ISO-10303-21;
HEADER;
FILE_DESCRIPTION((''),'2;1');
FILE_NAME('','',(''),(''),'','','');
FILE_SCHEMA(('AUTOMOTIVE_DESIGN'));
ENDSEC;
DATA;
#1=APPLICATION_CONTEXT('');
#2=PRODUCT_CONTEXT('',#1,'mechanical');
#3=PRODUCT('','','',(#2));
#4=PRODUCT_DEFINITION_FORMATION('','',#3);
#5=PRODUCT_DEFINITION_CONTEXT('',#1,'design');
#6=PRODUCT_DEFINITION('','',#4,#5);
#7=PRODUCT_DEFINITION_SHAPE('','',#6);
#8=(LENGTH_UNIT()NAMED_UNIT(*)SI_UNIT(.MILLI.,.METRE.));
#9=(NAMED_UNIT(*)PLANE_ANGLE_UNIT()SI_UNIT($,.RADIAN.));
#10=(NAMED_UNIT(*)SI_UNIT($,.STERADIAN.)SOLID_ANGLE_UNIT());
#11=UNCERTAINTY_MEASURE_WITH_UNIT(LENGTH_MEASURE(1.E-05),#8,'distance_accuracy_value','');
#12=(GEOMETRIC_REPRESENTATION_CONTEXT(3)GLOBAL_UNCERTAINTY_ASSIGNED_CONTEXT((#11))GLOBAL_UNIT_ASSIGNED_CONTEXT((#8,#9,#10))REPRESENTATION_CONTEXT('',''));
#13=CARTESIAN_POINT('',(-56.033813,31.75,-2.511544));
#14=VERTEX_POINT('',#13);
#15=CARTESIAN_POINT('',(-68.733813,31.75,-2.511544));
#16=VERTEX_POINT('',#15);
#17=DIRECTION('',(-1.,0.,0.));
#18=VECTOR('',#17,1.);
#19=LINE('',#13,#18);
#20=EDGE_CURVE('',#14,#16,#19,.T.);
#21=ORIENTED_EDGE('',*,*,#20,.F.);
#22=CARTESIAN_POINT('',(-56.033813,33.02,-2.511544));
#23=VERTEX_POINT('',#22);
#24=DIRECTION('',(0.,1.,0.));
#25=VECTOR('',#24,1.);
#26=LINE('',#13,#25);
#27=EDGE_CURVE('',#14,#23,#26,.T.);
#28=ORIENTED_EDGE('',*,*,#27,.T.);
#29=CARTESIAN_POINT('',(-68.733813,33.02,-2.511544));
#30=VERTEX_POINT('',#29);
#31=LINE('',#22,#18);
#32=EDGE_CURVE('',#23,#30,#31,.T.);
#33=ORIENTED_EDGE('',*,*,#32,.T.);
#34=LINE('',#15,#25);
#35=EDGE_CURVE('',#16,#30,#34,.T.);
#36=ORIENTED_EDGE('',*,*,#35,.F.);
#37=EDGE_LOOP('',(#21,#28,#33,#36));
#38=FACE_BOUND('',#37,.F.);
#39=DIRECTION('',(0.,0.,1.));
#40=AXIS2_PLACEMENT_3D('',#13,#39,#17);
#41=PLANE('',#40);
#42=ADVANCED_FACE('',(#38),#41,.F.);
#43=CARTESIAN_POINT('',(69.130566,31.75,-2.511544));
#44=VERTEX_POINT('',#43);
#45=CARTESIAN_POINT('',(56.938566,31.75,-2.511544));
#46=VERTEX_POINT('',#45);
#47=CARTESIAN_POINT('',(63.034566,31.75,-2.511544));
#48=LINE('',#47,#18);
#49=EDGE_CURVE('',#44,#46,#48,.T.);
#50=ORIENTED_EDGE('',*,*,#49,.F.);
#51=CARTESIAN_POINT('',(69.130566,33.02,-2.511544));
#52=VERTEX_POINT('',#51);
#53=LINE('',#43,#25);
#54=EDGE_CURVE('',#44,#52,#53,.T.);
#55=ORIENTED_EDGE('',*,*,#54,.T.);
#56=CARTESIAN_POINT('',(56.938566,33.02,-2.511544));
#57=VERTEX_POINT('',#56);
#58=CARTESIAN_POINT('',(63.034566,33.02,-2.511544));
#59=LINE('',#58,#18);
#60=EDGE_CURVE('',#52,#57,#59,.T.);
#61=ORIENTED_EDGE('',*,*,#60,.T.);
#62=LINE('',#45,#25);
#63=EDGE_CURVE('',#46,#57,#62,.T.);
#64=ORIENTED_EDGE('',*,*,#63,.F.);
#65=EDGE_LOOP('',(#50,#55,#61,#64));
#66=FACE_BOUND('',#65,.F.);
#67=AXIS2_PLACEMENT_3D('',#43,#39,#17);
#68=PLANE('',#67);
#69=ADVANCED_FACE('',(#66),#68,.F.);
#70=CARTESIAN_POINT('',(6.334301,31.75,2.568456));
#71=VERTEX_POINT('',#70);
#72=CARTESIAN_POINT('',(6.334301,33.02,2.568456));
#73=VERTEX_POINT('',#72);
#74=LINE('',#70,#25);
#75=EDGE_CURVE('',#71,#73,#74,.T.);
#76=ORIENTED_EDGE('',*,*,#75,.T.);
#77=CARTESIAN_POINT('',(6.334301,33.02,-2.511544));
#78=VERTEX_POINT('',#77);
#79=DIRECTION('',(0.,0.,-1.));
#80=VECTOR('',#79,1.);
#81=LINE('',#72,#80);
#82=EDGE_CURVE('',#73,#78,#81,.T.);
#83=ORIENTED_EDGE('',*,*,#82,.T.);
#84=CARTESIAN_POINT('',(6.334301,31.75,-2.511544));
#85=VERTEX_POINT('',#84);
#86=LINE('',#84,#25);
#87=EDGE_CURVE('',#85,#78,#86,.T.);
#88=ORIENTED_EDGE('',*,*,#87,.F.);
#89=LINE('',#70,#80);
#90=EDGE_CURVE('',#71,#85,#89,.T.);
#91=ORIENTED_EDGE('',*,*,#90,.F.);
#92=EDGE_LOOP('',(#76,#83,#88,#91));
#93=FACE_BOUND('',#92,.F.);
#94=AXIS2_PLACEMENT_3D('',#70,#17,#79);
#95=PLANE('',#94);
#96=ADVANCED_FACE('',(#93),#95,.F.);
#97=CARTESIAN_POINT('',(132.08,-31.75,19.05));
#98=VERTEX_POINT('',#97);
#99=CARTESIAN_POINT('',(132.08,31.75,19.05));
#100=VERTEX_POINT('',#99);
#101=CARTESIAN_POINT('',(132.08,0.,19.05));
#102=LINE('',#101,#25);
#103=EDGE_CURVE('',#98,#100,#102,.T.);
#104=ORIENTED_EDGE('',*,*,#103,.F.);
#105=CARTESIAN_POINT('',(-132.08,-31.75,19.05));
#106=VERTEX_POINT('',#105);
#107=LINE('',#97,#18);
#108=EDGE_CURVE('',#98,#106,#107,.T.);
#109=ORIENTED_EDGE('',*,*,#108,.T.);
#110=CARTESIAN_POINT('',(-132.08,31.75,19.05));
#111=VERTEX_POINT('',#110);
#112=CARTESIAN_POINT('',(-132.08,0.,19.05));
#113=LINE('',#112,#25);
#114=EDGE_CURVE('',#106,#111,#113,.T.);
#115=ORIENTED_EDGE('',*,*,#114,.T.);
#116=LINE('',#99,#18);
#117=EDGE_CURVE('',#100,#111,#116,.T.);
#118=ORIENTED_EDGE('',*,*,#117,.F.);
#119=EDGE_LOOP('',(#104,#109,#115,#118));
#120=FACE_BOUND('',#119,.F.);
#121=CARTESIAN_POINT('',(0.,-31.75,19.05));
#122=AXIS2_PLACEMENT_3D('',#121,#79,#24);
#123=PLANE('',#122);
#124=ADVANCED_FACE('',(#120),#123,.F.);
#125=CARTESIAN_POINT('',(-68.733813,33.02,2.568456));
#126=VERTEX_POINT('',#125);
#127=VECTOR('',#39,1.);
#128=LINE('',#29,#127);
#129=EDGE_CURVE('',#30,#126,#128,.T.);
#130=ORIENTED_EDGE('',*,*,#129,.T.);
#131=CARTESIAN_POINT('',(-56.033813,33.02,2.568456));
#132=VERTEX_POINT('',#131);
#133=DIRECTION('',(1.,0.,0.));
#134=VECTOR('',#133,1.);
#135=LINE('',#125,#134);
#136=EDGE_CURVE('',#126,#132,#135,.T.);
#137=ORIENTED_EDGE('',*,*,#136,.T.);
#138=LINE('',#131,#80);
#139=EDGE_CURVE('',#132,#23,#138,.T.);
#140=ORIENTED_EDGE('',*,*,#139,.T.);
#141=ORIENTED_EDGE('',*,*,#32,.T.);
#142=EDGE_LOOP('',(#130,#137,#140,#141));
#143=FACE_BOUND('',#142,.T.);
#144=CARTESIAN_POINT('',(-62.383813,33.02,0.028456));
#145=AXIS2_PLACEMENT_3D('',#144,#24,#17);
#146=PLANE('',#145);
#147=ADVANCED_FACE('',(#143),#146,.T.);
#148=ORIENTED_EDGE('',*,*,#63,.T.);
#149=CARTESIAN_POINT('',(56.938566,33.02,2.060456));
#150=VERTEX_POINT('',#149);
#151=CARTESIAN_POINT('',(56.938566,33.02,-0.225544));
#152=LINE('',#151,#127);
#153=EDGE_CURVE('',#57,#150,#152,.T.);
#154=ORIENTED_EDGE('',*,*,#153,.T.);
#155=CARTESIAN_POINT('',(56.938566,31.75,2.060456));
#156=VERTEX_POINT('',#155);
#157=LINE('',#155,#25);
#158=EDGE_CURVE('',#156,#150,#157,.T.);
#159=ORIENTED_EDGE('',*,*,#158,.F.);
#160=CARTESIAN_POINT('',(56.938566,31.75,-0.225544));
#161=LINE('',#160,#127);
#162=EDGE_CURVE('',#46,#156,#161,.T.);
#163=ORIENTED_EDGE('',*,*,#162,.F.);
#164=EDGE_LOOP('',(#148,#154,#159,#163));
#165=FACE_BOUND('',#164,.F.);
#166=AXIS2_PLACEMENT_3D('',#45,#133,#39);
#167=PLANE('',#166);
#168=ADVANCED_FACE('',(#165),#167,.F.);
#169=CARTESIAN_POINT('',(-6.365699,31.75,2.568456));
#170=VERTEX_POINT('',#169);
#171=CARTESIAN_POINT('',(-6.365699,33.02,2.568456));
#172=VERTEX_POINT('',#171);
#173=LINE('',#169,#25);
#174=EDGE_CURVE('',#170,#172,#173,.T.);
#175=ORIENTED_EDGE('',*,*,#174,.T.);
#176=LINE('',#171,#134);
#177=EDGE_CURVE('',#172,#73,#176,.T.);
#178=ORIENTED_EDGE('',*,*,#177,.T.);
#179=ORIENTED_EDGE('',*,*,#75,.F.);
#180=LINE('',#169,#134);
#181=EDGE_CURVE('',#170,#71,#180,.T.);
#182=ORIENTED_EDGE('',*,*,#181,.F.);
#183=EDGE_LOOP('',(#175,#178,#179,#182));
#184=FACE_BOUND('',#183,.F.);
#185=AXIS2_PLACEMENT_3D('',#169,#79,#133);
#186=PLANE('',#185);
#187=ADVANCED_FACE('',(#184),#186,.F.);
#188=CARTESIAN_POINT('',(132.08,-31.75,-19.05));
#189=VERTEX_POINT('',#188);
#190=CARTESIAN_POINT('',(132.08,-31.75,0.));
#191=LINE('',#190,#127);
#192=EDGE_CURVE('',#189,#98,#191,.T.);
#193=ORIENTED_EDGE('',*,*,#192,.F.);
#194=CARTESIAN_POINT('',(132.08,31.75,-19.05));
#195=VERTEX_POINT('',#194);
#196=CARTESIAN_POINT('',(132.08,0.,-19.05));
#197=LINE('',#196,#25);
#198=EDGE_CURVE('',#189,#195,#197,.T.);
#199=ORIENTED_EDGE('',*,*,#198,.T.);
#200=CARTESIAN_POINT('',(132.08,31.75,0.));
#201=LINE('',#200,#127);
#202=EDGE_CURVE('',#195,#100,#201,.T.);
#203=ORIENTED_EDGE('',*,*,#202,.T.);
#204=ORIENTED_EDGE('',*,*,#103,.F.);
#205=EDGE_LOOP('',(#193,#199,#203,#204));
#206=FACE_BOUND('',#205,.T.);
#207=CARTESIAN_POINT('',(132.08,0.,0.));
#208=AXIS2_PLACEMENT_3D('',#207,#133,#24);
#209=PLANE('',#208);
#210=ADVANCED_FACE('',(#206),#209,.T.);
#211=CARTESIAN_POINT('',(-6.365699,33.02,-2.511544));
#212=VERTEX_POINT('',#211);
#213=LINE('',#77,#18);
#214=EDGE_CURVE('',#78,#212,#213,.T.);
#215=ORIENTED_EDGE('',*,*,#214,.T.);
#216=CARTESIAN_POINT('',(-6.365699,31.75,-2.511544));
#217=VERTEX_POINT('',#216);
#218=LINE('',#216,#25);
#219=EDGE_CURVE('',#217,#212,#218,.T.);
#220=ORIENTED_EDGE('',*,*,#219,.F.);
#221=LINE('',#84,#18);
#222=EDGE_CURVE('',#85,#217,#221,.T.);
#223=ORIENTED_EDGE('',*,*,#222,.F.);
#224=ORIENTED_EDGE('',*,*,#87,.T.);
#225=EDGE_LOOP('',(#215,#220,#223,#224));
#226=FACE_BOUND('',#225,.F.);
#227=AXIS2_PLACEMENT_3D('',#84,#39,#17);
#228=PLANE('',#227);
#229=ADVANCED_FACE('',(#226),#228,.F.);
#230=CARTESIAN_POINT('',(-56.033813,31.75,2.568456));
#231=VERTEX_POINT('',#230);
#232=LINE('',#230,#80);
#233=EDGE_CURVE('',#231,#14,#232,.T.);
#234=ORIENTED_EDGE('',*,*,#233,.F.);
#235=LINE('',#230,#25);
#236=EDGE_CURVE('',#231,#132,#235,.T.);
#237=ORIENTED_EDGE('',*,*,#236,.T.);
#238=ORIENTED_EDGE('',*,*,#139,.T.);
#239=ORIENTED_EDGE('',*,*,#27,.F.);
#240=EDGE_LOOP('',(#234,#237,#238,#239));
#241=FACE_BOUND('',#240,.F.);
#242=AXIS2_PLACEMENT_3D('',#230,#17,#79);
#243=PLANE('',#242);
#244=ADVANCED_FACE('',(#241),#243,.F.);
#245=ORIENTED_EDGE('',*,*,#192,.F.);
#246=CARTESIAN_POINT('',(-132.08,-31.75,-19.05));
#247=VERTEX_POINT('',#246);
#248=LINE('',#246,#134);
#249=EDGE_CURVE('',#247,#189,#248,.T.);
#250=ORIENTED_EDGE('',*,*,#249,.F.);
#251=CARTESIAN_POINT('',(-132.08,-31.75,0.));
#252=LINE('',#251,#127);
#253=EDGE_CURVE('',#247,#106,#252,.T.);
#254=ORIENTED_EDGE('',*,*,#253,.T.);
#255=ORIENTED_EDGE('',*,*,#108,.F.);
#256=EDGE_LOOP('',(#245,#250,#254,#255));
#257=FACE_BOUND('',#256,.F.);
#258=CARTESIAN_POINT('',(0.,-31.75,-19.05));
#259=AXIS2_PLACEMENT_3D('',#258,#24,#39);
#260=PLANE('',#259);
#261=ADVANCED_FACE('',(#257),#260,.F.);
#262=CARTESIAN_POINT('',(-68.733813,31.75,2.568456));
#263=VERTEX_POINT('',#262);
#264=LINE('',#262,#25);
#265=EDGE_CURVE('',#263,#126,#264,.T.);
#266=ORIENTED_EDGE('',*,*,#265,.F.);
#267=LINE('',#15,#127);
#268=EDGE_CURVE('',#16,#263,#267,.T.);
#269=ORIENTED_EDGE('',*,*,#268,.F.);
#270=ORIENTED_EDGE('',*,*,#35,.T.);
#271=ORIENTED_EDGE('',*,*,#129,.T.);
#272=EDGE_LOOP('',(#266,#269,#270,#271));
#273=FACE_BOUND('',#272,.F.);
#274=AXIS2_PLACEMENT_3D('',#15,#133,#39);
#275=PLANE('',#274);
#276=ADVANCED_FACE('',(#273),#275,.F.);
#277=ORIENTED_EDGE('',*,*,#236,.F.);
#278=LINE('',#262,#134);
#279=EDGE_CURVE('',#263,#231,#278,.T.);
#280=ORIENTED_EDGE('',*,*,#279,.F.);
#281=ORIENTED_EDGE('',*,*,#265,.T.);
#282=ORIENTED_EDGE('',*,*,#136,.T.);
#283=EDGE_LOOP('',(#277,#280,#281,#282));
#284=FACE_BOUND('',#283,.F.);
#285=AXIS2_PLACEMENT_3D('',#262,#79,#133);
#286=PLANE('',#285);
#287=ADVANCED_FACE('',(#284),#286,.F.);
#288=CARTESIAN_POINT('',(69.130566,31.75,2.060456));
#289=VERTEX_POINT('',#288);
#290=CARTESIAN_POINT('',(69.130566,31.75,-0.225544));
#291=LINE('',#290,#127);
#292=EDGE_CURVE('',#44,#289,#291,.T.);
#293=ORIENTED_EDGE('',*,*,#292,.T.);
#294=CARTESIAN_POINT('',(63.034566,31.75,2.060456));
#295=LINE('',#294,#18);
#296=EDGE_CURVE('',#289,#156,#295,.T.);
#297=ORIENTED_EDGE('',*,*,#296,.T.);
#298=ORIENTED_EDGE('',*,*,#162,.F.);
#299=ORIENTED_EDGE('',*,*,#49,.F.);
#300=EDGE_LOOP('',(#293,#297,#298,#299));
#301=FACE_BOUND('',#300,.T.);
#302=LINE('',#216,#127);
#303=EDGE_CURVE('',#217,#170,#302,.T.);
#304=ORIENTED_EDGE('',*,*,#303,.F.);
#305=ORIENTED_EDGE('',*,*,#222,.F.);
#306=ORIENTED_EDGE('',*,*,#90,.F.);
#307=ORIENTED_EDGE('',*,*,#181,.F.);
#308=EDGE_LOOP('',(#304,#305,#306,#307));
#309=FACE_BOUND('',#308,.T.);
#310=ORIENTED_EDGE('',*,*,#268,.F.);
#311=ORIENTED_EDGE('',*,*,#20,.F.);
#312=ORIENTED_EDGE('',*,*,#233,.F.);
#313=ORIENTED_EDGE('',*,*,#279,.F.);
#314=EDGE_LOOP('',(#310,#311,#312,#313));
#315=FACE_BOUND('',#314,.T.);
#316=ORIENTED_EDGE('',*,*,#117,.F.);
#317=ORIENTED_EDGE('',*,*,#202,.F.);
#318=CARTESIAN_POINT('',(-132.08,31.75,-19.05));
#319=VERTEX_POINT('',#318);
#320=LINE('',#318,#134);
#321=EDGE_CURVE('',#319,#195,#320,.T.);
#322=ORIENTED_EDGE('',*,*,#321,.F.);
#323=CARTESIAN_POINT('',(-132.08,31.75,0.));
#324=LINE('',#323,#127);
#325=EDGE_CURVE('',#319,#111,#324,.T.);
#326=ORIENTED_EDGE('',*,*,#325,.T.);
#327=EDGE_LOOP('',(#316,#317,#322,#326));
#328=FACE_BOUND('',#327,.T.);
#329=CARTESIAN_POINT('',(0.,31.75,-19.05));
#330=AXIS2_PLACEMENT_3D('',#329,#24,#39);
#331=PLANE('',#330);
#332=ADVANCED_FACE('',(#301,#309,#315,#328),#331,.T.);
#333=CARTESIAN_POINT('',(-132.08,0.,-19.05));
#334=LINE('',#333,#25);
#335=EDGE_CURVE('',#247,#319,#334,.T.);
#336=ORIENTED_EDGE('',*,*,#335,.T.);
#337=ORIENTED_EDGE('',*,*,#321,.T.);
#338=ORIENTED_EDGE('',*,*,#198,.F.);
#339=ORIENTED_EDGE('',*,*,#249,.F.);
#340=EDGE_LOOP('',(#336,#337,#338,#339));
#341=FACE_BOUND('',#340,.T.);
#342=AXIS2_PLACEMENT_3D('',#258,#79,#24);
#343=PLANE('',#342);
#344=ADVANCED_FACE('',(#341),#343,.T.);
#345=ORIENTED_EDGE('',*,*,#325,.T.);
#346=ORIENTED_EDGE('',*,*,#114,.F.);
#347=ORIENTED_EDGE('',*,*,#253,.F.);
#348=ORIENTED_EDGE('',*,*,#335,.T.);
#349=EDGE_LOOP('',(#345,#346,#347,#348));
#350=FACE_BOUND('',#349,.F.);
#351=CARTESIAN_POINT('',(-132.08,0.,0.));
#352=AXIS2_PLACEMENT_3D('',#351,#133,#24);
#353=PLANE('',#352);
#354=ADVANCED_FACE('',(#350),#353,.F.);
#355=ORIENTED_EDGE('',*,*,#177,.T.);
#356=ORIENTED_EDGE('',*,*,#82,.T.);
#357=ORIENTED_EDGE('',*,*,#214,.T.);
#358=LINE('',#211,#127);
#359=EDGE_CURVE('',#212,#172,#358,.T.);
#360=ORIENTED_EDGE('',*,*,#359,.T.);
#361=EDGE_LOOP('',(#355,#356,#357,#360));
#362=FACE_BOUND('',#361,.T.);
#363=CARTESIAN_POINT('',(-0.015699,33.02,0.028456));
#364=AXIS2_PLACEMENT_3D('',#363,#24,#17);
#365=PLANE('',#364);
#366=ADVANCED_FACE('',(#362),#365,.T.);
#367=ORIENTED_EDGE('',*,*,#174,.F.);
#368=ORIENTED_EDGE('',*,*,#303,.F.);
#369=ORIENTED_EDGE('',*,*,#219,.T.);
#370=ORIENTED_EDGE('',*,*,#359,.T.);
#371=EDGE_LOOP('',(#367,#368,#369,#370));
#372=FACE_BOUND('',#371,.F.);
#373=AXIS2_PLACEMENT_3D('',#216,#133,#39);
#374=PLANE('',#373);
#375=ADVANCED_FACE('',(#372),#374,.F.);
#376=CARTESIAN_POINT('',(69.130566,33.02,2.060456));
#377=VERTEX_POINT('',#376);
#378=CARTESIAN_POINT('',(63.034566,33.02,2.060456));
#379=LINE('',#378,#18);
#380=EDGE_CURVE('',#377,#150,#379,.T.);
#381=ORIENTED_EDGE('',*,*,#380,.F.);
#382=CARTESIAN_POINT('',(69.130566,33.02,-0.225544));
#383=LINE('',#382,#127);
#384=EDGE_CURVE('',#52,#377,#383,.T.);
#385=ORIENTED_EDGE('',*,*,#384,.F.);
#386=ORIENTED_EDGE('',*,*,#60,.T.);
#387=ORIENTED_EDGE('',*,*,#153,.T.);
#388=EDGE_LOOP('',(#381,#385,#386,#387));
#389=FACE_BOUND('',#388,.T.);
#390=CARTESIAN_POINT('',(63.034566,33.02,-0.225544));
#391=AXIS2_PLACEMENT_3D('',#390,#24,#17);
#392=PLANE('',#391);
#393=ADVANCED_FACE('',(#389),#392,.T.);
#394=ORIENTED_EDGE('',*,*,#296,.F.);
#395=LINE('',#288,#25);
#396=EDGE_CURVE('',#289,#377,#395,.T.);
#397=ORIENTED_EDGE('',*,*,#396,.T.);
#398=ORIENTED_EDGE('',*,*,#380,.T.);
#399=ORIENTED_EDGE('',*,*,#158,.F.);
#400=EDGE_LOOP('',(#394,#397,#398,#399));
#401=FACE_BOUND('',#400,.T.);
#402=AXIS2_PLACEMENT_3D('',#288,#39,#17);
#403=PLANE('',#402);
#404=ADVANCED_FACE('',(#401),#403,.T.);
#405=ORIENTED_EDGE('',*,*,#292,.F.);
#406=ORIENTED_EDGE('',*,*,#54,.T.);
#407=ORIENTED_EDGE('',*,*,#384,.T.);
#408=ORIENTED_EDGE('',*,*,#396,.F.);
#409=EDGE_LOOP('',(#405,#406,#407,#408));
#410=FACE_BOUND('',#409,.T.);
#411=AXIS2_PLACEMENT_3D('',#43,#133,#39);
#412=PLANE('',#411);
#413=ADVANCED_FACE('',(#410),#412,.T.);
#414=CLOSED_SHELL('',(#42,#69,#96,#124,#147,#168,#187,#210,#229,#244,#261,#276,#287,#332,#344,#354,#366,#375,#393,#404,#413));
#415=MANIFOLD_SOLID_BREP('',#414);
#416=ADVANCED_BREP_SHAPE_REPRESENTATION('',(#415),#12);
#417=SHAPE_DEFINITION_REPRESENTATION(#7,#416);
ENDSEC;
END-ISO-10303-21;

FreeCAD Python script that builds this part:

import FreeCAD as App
import Part
import Sketcher
from FreeCAD import Vector
Q = App.Units.Quantity


def add_polygon(sketch, points):
    """Adds a closed chain of lines whose ends are joined by coincident constraints."""
    first, n = sketch.GeometryCount, len(points)
    for a, b in zip(points, points[1:] + points[:1]):
        sketch.addGeometry(Part.LineSegment(App.Vector(*a, 0), App.Vector(*b, 0)), False)
    for i in range(n):
        sketch.addConstraint(Sketcher.Constraint("Coincident", first + i, 2, first + (i + 1) % n, 1))

doc = App.newDocument("Part")
body = doc.addObject("PartDesign::Body", "Body")

# Sketch on YZ plane
sketch1 = doc.addObject("Sketcher::SketchObject", "Sketch")
body.addObject(sketch1)
sketch1.AttachmentSupport = (doc.YZ_Plane, [""])
sketch1.MapMode = "FlatFace"
add_polygon(sketch1, [(-32, 19), (-32, -19), (32, -19), (32, 19)])  # lines 0-3
sketch1.addConstraint(Sketcher.Constraint("Vertical", 0))
sketch1.addConstraint(Sketcher.Constraint("Horizontal", 1))
sketch1.addConstraint(Sketcher.Constraint("Vertical", 2))
sketch1.addConstraint(Sketcher.Constraint("Horizontal", 3))
sketch1.addConstraint(Sketcher.Constraint("Symmetric", 0, 2, 2, 2, -1, 1))
sketch1.addConstraint(Sketcher.Constraint("DistanceX", 1, 1, 1, 2, Q("2.5 in")))
sketch1.addConstraint(Sketcher.Constraint("DistanceY", 0, 2, 0, 1, Q("1.5 in")))
pad1 = doc.addObject("PartDesign::Pad", "Pad")
body.addObject(pad1)
pad1.Profile = sketch1
pad1.Length = Q("10.4 in")
pad1.Midplane = True

# Sketch on XZ plane
sketch2 = doc.addObject("Sketcher::SketchObject", "Sketch001")
body.addObject(sketch2)
sketch2.AttachmentSupport = (doc.XZ_Plane, [""])
sketch2.MapMode = "FlatFace"
sketch2.AttachmentOffset = App.Placement(Vector(0, 0, -1.25 * 25.4), App.Rotation())
add_polygon(sketch2, [(69.1, 2.1), (69.1, -2.5), (56.9, -2.5), (56.9, 2.1)])  # lines 0-3
add_polygon(sketch2, [(6.3, -2.5), (-6.4, -2.5), (-6.4, 2.6), (6.3, 2.6)])  # lines 4-7
add_polygon(sketch2, [(-68.7, -2.5), (-68.7, 2.6), (-56, 2.6), (-56, -2.5)])  # lines 8-11
sketch2.addConstraint(Sketcher.Constraint("Vertical", 0))
sketch2.addConstraint(Sketcher.Constraint("Horizontal", 1))
sketch2.addConstraint(Sketcher.Constraint("Vertical", 2))
sketch2.addConstraint(Sketcher.Constraint("Horizontal", 3))
sketch2.addConstraint(Sketcher.Constraint("Horizontal", 4))
sketch2.addConstraint(Sketcher.Constraint("Vertical", 5))
sketch2.addConstraint(Sketcher.Constraint("Horizontal", 6))
sketch2.addConstraint(Sketcher.Constraint("Vertical", 7))
sketch2.addConstraint(Sketcher.Constraint("Vertical", 8))
sketch2.addConstraint(Sketcher.Constraint("Horizontal", 9))
sketch2.addConstraint(Sketcher.Constraint("Vertical", 10))
sketch2.addConstraint(Sketcher.Constraint("Horizontal", 11))
sketch2.addConstraint(Sketcher.Constraint("Horizontal", 1, 2, 4, 2))
sketch2.addConstraint(Sketcher.Constraint("Horizontal", 6, 2, 8, 2))
sketch2.addConstraint(Sketcher.Constraint("Horizontal", 7, 2, 10, 2))
sketch2.addConstraint(Sketcher.Constraint("Equal", 6, 9))
sketch2.addConstraint(Sketcher.Constraint("DistanceX", 4, 2, 4, 1, Q("0.5 in")))
sketch2.addConstraint(Sketcher.Constraint("DistanceY", 5, 1, 5, 2, Q("0.2 in")))
sketch2.addConstraint(Sketcher.Constraint("DistanceX", 1, 2, 1, 1, Q("0.48 in")))
sketch2.addConstraint(Sketcher.Constraint("DistanceY", 0, 2, 0, 1, Q("0.18 in")))
sketch2.addConstraint(Sketcher.Constraint("DistanceX", 4, 2, -1, 1, 6.365699))
sketch2.addConstraint(Sketcher.Constraint("DistanceX", 8, 2, 2, 2, 125.672379))
sketch2.addConstraint(Sketcher.Constraint("DistanceX", -1, 1, 0, 2, 69.130566))
sketch2.addConstraint(Sketcher.Constraint("DistanceY", 0, 2, -1, 1, 2.511544))
pad2 = doc.addObject("PartDesign::Pad", "Pad001")
body.addObject(pad2)
pad2.Profile = sketch2
pad2.Length = Q("0.05 in")
pad2.Reversed = True

doc.recompute()
